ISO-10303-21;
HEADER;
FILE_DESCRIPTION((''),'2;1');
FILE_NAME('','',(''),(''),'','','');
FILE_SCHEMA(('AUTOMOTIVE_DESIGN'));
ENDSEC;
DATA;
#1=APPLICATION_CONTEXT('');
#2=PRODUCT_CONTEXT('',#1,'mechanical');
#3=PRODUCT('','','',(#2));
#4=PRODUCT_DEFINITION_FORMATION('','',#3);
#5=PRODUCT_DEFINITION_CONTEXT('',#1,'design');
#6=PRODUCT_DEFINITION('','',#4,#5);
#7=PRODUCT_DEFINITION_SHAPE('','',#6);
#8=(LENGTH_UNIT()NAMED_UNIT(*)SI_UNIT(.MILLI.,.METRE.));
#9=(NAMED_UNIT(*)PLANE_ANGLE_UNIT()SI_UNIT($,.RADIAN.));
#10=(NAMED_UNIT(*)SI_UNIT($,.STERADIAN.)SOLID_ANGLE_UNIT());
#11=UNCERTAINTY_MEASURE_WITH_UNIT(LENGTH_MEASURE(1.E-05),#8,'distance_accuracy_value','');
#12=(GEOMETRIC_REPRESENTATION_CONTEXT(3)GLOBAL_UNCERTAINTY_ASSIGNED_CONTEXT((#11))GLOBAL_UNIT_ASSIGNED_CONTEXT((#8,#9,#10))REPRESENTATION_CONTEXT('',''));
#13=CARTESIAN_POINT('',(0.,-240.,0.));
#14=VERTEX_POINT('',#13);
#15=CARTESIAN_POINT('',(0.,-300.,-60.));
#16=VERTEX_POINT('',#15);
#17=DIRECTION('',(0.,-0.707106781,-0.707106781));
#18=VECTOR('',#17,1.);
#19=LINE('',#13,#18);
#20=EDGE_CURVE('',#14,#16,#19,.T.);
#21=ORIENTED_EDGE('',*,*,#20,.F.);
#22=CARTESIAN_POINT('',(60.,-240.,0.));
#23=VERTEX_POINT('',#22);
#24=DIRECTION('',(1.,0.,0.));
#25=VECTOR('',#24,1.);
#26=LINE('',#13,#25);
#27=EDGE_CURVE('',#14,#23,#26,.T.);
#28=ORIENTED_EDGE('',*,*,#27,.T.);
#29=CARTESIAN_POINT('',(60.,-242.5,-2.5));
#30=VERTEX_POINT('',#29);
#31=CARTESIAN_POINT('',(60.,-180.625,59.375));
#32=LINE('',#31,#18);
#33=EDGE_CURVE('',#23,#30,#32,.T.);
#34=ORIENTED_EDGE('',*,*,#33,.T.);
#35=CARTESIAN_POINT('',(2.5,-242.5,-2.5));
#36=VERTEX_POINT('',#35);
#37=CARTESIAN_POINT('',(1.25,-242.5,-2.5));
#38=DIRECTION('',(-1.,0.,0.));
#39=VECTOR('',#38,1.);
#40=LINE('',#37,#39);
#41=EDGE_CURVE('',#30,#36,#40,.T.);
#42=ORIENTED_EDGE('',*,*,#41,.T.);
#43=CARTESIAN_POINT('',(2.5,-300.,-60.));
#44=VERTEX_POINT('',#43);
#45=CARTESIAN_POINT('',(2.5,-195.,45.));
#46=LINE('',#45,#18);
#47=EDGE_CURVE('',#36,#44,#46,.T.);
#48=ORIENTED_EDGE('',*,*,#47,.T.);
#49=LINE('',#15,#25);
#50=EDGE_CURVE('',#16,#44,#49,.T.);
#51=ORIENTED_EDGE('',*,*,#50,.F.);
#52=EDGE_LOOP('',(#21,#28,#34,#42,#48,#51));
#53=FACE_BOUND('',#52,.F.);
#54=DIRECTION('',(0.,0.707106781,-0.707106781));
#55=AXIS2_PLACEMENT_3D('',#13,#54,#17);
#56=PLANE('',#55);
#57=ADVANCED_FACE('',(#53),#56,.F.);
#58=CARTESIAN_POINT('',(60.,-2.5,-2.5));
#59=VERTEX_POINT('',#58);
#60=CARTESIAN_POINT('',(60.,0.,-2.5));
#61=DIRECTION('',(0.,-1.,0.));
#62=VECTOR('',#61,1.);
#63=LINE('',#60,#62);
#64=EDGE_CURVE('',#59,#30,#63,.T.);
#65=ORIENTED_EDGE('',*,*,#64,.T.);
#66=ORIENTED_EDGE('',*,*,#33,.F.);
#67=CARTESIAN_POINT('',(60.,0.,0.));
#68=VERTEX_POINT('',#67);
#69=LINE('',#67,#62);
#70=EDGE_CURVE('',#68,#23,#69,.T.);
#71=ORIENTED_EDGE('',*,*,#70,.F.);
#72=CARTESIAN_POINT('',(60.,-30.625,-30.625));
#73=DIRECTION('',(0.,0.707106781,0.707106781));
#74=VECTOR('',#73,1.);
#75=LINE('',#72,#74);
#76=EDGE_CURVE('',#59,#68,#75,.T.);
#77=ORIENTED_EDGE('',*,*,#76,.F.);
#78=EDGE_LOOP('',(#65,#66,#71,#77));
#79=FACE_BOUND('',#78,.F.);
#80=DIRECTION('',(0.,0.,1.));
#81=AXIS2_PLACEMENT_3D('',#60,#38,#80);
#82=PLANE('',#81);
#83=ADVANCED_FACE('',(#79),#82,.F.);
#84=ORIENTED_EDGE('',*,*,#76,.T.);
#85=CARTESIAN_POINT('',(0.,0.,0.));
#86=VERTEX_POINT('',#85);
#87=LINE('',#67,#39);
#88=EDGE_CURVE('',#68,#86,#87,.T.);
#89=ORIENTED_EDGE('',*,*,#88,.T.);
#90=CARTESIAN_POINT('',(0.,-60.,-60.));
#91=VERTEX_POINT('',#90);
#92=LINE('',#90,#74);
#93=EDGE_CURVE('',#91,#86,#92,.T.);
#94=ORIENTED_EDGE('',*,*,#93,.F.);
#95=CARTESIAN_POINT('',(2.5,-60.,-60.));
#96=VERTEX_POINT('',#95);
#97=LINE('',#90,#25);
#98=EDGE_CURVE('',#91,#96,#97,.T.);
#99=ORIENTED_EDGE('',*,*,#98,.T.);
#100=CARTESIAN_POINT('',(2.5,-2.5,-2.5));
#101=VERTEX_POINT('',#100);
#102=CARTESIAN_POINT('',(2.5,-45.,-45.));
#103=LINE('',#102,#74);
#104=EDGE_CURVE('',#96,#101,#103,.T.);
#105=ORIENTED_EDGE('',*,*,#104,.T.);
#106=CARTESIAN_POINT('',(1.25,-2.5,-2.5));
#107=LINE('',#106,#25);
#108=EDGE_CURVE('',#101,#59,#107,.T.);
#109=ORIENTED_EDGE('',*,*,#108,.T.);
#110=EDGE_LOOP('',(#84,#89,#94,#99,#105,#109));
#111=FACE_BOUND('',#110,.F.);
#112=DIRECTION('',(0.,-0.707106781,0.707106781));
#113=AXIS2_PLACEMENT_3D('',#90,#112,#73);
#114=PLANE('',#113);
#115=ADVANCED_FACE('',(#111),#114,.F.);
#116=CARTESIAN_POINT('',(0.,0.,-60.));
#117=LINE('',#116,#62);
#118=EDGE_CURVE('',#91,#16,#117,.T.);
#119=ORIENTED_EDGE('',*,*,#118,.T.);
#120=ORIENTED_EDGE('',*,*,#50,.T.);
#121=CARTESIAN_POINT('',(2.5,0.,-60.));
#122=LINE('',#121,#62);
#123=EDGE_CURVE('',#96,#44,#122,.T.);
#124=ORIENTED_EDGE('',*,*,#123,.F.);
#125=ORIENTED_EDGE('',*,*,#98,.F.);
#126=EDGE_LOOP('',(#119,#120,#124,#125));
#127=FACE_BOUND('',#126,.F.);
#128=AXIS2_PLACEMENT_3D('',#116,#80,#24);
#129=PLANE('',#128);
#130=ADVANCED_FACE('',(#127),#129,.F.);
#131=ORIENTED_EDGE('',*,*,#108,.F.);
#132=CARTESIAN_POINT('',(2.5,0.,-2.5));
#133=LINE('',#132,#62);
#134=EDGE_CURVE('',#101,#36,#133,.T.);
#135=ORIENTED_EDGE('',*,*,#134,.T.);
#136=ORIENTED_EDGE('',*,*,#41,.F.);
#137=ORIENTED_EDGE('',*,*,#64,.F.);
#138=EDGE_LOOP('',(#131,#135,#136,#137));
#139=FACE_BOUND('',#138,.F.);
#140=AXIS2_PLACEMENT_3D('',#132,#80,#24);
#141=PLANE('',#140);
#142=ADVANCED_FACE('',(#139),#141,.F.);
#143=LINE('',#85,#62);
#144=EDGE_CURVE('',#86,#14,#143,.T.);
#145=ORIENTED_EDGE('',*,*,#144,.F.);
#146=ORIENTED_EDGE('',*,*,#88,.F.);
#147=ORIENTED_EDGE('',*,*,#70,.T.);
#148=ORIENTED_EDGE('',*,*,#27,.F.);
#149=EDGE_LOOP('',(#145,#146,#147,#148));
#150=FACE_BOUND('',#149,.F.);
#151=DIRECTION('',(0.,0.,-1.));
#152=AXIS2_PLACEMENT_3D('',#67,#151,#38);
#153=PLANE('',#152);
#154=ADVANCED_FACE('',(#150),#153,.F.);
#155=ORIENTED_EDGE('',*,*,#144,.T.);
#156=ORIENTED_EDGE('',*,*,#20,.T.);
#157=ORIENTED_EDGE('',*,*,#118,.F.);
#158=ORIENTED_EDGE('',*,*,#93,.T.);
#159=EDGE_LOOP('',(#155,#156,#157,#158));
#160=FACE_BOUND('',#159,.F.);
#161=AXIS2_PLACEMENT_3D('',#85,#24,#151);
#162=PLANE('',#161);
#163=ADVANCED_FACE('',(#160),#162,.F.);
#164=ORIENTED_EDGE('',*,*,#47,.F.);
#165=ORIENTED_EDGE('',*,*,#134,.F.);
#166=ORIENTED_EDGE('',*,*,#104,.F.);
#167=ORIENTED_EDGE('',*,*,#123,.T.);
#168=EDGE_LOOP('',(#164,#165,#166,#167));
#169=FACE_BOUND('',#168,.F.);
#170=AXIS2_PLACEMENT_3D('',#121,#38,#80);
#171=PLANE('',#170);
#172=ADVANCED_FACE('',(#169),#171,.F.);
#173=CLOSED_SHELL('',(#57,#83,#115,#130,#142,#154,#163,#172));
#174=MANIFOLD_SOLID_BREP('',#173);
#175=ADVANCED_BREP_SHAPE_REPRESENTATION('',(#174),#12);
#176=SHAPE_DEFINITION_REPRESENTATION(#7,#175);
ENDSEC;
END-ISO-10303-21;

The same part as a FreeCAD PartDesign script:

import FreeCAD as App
import Part
import Sketcher

V = App.Vector


def add_polygon(sketch, points):
    """Adds a closed chain of lines whose ends are joined by coincident constraints."""
    first, n = sketch.GeometryCount, len(points)
    for a, b in zip(points, points[1:] + points[:1]):
        sketch.addGeometry(Part.LineSegment(App.Vector(*a, 0), App.Vector(*b, 0)), False)
    for i in range(n):
        sketch.addConstraint(Sketcher.Constraint("Coincident", first + i, 2, first + (i + 1) % n, 1))

doc = App.newDocument("Part")
body = doc.addObject("PartDesign::Body", "Body")

sketch1 = body.newObject("Sketcher::SketchObject", "Sketch")
sketch1.AttachmentSupport = (doc.getObject("XZ_Plane"), [""])
sketch1.MapMode = "FlatFace"
add_polygon(sketch1, [(60, 0), (0, 0), (0, -60), (2.5, -60), (2.5, -2.5), (60, -2.5)])
sketch1.addConstraint([
    Sketcher.Constraint("Horizontal", 0),
    Sketcher.Constraint("Vertical", 1),
    Sketcher.Constraint("Horizontal", 2),
    Sketcher.Constraint("Vertical", 3),
    Sketcher.Constraint("Horizontal", 4),
    Sketcher.Constraint("Vertical", 5),
    Sketcher.Constraint("Coincident", 0, 2, -1, 1),
    Sketcher.Constraint("Equal", 0, 1),
    Sketcher.Constraint("Equal", 4, 3),
    Sketcher.Constraint("DistanceX", 0, 2, 0, 1, 60.0),
    Sketcher.Constraint("DistanceX", 2, 1, 2, 2, 2.5),
])
pad1 = body.newObject("PartDesign::Pad", "Pad")
pad1.Profile = sketch1
pad1.Length = 300

sketch2 = body.newObject("Sketcher::SketchObject", "Sketch001")
sketch2.AttachmentSupport = (doc.getObject("YZ_Plane"), [""])
sketch2.MapMode = "FlatFace"
add_polygon(sketch2, [(0, 0), (0, -60), (-60, -60)])
sketch2.addConstraint([
    Sketcher.Constraint("Vertical", 0),
    Sketcher.Constraint("Horizontal", 1),
    Sketcher.Constraint("Coincident", 2, 2, -1, 1),
    Sketcher.Constraint("Equal", 1, 0),
    Sketcher.Constraint("DistanceX", 1, 2, 1, 1, 60.0),
])
pocket1 = body.newObject("PartDesign::Pocket", "Pocket")
pocket1.Profile = sketch2
pocket1.Type = "ThroughAll"
pocket1.Reversed = True

sketch3 = body.newObject("Sketcher::SketchObject", "Sketch002")
sketch3.AttachmentSupport = (doc.getObject("YZ_Plane"), [""])
sketch3.MapMode = "FlatFace"
add_polygon(sketch3, [(-240, 0), (-300, -60), (-300, 0)])
sketch3.addConstraint([
    Sketcher.Constraint("Vertical", 1),
    Sketcher.Constraint("Horizontal", 2),
    Sketcher.Constraint("PointOnObject", 1, 2, -1),
    Sketcher.Constraint("Equal", 2, 1),
    Sketcher.Constraint("DistanceX", 2, 1, 2, 2, 60.0),
    Sketcher.Constraint("DistanceX", 0, 2, -1, 1, 300.0),
])
pocket2 = body.newObject("PartDesign::Pocket", "Pocket001")
pocket2.Profile = sketch3
pocket2.Type = "ThroughAll"
pocket2.Reversed = True

doc.recompute()
